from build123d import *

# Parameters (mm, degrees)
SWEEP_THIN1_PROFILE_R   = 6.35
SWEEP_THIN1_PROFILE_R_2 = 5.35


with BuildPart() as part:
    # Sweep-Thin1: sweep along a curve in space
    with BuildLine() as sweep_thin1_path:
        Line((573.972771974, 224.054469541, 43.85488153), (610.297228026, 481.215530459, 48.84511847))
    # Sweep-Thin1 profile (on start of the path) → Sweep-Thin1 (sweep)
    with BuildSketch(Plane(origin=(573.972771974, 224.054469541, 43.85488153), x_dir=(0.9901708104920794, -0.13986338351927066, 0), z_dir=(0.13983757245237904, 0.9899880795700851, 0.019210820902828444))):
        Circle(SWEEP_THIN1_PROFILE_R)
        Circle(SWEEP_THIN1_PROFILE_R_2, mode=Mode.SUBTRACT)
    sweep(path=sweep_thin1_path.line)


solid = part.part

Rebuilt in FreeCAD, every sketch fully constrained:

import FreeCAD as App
import Part
import Sketcher
Q = App.Units.Quantity

doc = App.newDocument("Part")
body = doc.addObject("PartDesign::Body", "Body")

# Sketch on an angled plane
sketch1 = body.newObject("Sketcher::SketchObject", "Sketch")
sketch1.Placement = App.Placement(App.Vector(573.972772, 224.05447, 43.854882), App.Rotation(App.Vector(0.99017081, -0.139863384, 0), App.Vector(0.00268689, 0.019021994, -0.999815455), App.Vector(0.139837572, 0.98998808, 0.019210821), "ZXY"))
sketch1.addGeometry(Part.Circle(App.Vector(0, 0, 0), App.Vector(0, 0, 1), 6.35), False)
sketch1.addGeometry(Part.Circle(App.Vector(0, 0, 0), App.Vector(0, 0, 1), 5.35), False)
sketch1.addConstraint(Sketcher.Constraint("Coincident", 0, 3, -1, 1))
sketch1.addConstraint(Sketcher.Constraint("Coincident", 1, 3, -1, 1))
sketch1.addConstraint(Sketcher.Constraint("Diameter", 0, Q("12.7 mm")))
sketch1.addConstraint(Sketcher.Constraint("Diameter", 1, Q("10.7 mm")))

# Sketch on an angled plane
sketch2 = body.newObject("Sketcher::SketchObject", "Sketch001")
sketch2.Placement = App.Placement(App.Vector(531.715852, -75.105807, 0), App.Rotation(App.Vector(0.139863384, 0.99017081, 0), App.Vector(0, 0, 0.999999999), App.Vector(0.99017081, -0.139863384, 0), "ZXY"))
sketch2.addGeometry(Part.LineSegment(App.Vector(302.129969, 43.854881, 0), App.Vector(561.843807, 48.845118, 0)), False)
sketch2.addConstraint(Sketcher.Constraint("DistanceX", -1, 1, 0, 1, Q("302.129969 mm")))
sketch2.addConstraint(Sketcher.Constraint("DistanceY", -1, 1, 0, 1, Q("43.854881 mm")))
sketch2.addConstraint(Sketcher.Constraint("DistanceY", -1, 1, 0, 2, Q("48.845118 mm")))
sketch2.addConstraint(Sketcher.Constraint("Distance", 0, Q("259.761775 mm")))
doc.recompute()

additivepipe = body.newObject("PartDesign::AdditivePipe", "AdditivePipe")
additivepipe.Profile = sketch1
additivepipe.Spine = (sketch2, ["Edge1"])

doc.recompute()
